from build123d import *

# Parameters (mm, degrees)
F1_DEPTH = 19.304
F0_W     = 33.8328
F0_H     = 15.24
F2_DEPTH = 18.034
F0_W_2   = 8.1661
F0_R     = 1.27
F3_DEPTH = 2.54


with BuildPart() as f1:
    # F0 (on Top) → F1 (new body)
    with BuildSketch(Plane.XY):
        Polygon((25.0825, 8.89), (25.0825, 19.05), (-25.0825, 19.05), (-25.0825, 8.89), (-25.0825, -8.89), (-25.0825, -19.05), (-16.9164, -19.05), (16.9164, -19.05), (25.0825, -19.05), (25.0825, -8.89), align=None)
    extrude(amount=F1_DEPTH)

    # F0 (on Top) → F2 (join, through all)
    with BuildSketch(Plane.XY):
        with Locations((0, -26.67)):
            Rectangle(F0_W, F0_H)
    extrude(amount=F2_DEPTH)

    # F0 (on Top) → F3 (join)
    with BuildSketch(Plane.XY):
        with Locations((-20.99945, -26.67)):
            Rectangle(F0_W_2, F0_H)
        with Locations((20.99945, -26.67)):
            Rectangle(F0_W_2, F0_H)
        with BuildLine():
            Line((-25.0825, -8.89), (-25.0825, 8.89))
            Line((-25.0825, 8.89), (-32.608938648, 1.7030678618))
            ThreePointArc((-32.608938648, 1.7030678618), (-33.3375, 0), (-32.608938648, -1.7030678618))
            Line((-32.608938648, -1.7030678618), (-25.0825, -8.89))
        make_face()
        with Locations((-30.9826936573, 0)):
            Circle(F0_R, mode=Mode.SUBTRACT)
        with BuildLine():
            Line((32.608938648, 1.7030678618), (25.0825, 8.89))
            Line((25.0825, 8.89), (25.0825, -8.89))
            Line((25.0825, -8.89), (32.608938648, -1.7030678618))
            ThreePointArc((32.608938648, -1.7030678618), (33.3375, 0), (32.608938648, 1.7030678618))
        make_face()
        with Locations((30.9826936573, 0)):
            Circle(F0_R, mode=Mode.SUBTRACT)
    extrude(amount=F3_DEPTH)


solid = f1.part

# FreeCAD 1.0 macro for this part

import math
import FreeCAD as App
import Part
import Sketcher

V = App.Vector
Q = App.Units.Quantity

doc = App.newDocument("Part")
body = doc.addObject("PartDesign::Body", "Body")

# Sketch on XY plane
sketch1 = doc.addObject("Sketcher::SketchObject", "Sketch")
body.addObject(sketch1)
sketch1.AttachmentSupport = (doc.XY_Plane, [""])
sketch1.MapMode = "FlatFace"
sketch1.addGeometry([
    Part.LineSegment(V(25.0825, 19.05, 0), V(-25.0825, 19.05, 0)),
    Part.LineSegment(V(-25.0825, 19.05, 0), V(-25.0825, -19.05, 0)),
    Part.LineSegment(V(-25.0825, -19.05, 0), V(25.0825, -19.05, 0)),
    Part.LineSegment(V(25.0825, -19.05, 0), V(25.0825, 19.05, 0)),
], False)
sketch1.addConstraint([
    Sketcher.Constraint("Coincident", 0, 2, 1, 1),
    Sketcher.Constraint("Coincident", 1, 2, 2, 1),
    Sketcher.Constraint("Coincident", 2, 2, 3, 1),
    Sketcher.Constraint("Coincident", 3, 2, 0, 1),
    Sketcher.Constraint("Horizontal", 0),
    Sketcher.Constraint("Vertical", 1),
    Sketcher.Constraint("Horizontal", 2),
    Sketcher.Constraint("Vertical", 3),
    Sketcher.Constraint("Symmetric", 0, 2, 2, 2, -1, 1),
    Sketcher.Constraint("DistanceY", 1, 2, 1, 1, Q("1.5 in")),
    Sketcher.Constraint("DistanceX", 0, 2, 0, 1, Q("1.975 in")),
])
pad1 = doc.addObject("PartDesign::Pad", "Pad")
body.addObject(pad1)
pad1.Profile = sketch1
pad1.Length = Q("0.76 in")

# Sketch on XY plane
sketch2 = doc.addObject("Sketcher::SketchObject", "Sketch001")
body.addObject(sketch2)
sketch2.AttachmentSupport = (doc.XY_Plane, [""])
sketch2.MapMode = "FlatFace"
sketch2.addGeometry([
    Part.LineSegment(V(-16.9164, -19.05, 0), V(-16.9164, -34.29, 0)),
    Part.LineSegment(V(-16.9164, -34.29, 0), V(16.9164, -34.29, 0)),
    Part.LineSegment(V(16.9164, -34.29, 0), V(16.9164, -19.05, 0)),
    Part.LineSegment(V(16.9164, -19.05, 0), V(-16.9164, -19.05, 0)),
], False)
sketch2.addConstraint([
    Sketcher.Constraint("Coincident", 0, 2, 1, 1),
    Sketcher.Constraint("Coincident", 1, 2, 2, 1),
    Sketcher.Constraint("Coincident", 2, 2, 3, 1),
    Sketcher.Constraint("Coincident", 3, 2, 0, 1),
    Sketcher.Constraint("Vertical", 0),
    Sketcher.Constraint("Horizontal", 1),
    Sketcher.Constraint("Vertical", 2),
    Sketcher.Constraint("Horizontal", 3),
    Sketcher.Constraint("DistanceY", 0, 2, 0, 1, Q("0.6 in")),
    Sketcher.Constraint("DistanceX", 1, 1, 1, 2, Q("1.332 in")),
    Sketcher.Constraint("DistanceY", 0, 2, -1, 1, Q("1.35 in")),
    Sketcher.Constraint("DistanceX", 0, 2, -1, 1, Q("0.666 in")),
])
pad2 = doc.addObject("PartDesign::Pad", "Pad001")
body.addObject(pad2)
pad2.Profile = sketch2
pad2.Length = Q("0.71 in")

# Sketch on XY plane
sketch3 = doc.addObject("Sketcher::SketchObject", "Sketch002")
body.addObject(sketch3)
sketch3.AttachmentSupport = (doc.XY_Plane, [""])
sketch3.MapMode = "FlatFace"
sketch3.addGeometry([
    Part.LineSegment(V(-25.0825, -19.05, 0), V(-25.0825, -34.29, 0)),  # 0
    Part.LineSegment(V(-25.0825, -34.29, 0), V(-16.9164, -34.29, 0)),  # 1
    Part.LineSegment(V(-16.9164, -34.29, 0), V(-16.9164, -19.05, 0)),  # 2
    Part.LineSegment(V(-16.9164, -19.05, 0), V(-25.0825, -19.05, 0)),  # 3
    Part.LineSegment(V(16.9164, -19.05, 0), V(16.9164, -34.29, 0)),  # 4
    Part.LineSegment(V(16.9164, -34.29, 0), V(25.0825, -34.29, 0)),  # 5
    Part.LineSegment(V(25.0825, -34.29, 0), V(25.0825, -19.05, 0)),  # 6
    Part.LineSegment(V(25.0825, -19.05, 0), V(16.9164, -19.05, 0)),  # 7
    Part.LineSegment(V(-25.0825, -8.89, 0), V(-25.0825, 8.89, 0)),  # 8
    Part.LineSegment(V(-25.0825, 8.89, 0), V(-32.608939, 1.703068, 0)),  # 9
    Part.ArcOfCircle(Part.Circle(V(-30.982694, 0, 0), V(0, 0, 1), 2.354806), math.radians(133.678152), math.radians(226.321848)),  # 10
    Part.LineSegment(V(-32.608939, -1.703068, 0), V(-25.0825, -8.89, 0)),  # 11
    Part.Circle(V(-30.982694, 0, 0), V(0, 0, 1), 1.27),  # 12
    Part.LineSegment(V(32.608939, 1.703068, 0), V(25.0825, 8.89, 0)),  # 13
    Part.LineSegment(V(25.0825, 8.89, 0), V(25.0825, -8.89, 0)),  # 14
    Part.LineSegment(V(25.0825, -8.89, 0), V(32.608939, -1.703068, 0)),  # 15
    Part.ArcOfCircle(Part.Circle(V(30.982694, 0, 0), V(0, 0, 1), 2.354806), math.radians(-46.321848), math.radians(46.321848)),  # 16
    Part.Circle(V(30.982694, 0, 0), V(0, 0, 1), 1.27),  # 17
], False)
sketch3.addConstraint([
    Sketcher.Constraint("Coincident", 0, 2, 1, 1),
    Sketcher.Constraint("Coincident", 1, 2, 2, 1),
    Sketcher.Constraint("Coincident", 2, 2, 3, 1),
    Sketcher.Constraint("Coincident", 3, 2, 0, 1),
    Sketcher.Constraint("Coincident", 4, 2, 5, 1),
    Sketcher.Constraint("Coincident", 5, 2, 6, 1),
    Sketcher.Constraint("Coincident", 6, 2, 7, 1),
    Sketcher.Constraint("Coincident", 7, 2, 4, 1),
    Sketcher.Constraint("Coincident", 8, 2, 9, 1),
    Sketcher.Constraint("Tangent", 9, 2, 10, 1),
    Sketcher.Constraint("Tangent", 10, 2, 11, 1),
    Sketcher.Constraint("Coincident", 11, 2, 8, 1),
    Sketcher.Constraint("Coincident", 13, 2, 14, 1),
    Sketcher.Constraint("Coincident", 14, 2, 15, 1),
    Sketcher.Constraint("Tangent", 15, 2, 16, 1),
    Sketcher.Constraint("Tangent", 16, 2, 13, 1),
    Sketcher.Constraint("Vertical", 0),
    Sketcher.Constraint("Horizontal", 1),
    Sketcher.Constraint("Vertical", 2),
    Sketcher.Constraint("Horizontal", 3),
    Sketcher.Constraint("Vertical", 4),
    Sketcher.Constraint("Horizontal", 5),
    Sketcher.Constraint("Vertical", 6),
    Sketcher.Constraint("Horizontal", 7),
    Sketcher.Constraint("Vertical", 8),
    Sketcher.Constraint("Vertical", 14),
    Sketcher.Constraint("Coincident", 12, 3, 10, 3),
    Sketcher.Constraint("Coincident", 17, 3, 16, 3),
    Sketcher.Constraint("Equal", 10, 16),
    Sketcher.Constraint("Equal", 12, 17),
    Sketcher.Constraint("Symmetric", 10, 3, 16, 3, -1, 1),
    Sketcher.Constraint("Symmetric", 11, 2, 13, 2, -1, 1),
    Sketcher.Constraint("Symmetric", 1, 2, 4, 2, -2),
    Sketcher.Constraint("Symmetric", 3, 2, 6, 2, -2),
    Sketcher.Constraint("Symmetric", 10, 2, 15, 2, -2),
    Sketcher.Constraint("Parallel", 9, 15),
    Sketcher.Constraint("Vertical", 3, 2, 8, 2),
    Sketcher.Constraint("Diameter", 12, Q("0.1 in")),
    Sketcher.Constraint("DistanceY", 0, 2, 0, 1, Q("0.6 in")),
    Sketcher.Constraint("DistanceY", 8, 1, 8, 2, Q("0.7 in")),
    Sketcher.Constraint("DistanceY", 3, 2, 8, 2, Q("1.1 in")),
    Sketcher.Constraint("DistanceX", 1, 1, 1, 2, Q("0.3215 in")),
    Sketcher.Constraint("DistanceX", 1, 2, -1, 1, Q("0.666 in")),
    Sketcher.Constraint("Radius", 10, 2.354806),
    Sketcher.Constraint("DistanceY", 10, 2, 9, 2, Q("0.1340998 in")),
])
pad3 = doc.addObject("PartDesign::Pad", "Pad002")
body.addObject(pad3)
pad3.Profile = sketch3
pad3.Length = Q("0.1 in")

doc.recompute()
